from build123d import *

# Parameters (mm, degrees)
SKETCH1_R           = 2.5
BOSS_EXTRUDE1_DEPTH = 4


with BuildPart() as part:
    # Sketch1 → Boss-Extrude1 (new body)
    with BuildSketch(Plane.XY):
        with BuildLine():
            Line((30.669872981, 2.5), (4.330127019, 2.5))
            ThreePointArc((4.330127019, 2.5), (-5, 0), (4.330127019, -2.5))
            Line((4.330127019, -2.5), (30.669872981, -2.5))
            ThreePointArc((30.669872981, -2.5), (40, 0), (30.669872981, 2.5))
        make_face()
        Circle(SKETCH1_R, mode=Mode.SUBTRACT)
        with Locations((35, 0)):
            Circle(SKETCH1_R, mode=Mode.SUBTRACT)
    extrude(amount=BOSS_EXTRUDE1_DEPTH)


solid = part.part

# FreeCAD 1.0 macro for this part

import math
import FreeCAD as App
import Part
import Sketcher
from FreeCAD import Vector

doc = App.newDocument("Part")
body = doc.addObject("PartDesign::Body", "Body")

# Sketch on XY plane
sketch1 = body.newObject("Sketcher::SketchObject", "Sketch")
sketch1.AttachmentSupport = (doc.getObject("XY_Plane"), [""])
sketch1.MapMode = "FlatFace"
sketch1.addGeometry([
    Part.LineSegment(Vector(30.7, 2.5, 0), Vector(4.3, 2.5, 0)),  # 0
    Part.ArcOfCircle(Part.Circle(Vector(0, 0, 0), Vector(0, 0, 1), 5), math.radians(30), math.radians(330)),  # 1
    Part.LineSegment(Vector(4.3, -2.5, 0), Vector(30.7, -2.5, 0)),  # 2
    Part.ArcOfCircle(Part.Circle(Vector(35, 0, 0), Vector(0, 0, 1), 5), math.radians(-150), math.radians(150)),  # 3
    Part.Circle(Vector(0, 0, 0), Vector(0, 0, 1), 2.5),  # 4
    Part.Circle(Vector(35, 0, 0), Vector(0, 0, 1), 2.5),  # 5
], False)
sketch1.addConstraint([
    Sketcher.Constraint("Coincident", 0, 2, 1, 1),
    Sketcher.Constraint("Coincident", 1, 2, 2, 1),
    Sketcher.Constraint("Coincident", 2, 2, 3, 1),
    Sketcher.Constraint("Coincident", 3, 2, 0, 1),
    Sketcher.Constraint("Horizontal", 0),
    Sketcher.Constraint("Horizontal", 2),
    Sketcher.Constraint("Coincident", 1, 3, -1, 1),
    Sketcher.Constraint("Coincident", 4, 3, -1, 1),
    Sketcher.Constraint("Coincident", 5, 3, 3, 3),
    Sketcher.Constraint("Equal", 1, 3),
    Sketcher.Constraint("Equal", 4, 5),
    Sketcher.Constraint("Symmetric", 2, 2, 3, 2, -1),
    Sketcher.Constraint("Diameter", 4, 5.0),
    Sketcher.Constraint("Radius", 1, 5.0),
    Sketcher.Constraint("DistanceX", -1, 1, 3, 3, 35.0),
    Sketcher.Constraint("DistanceY", 1, 2, 0, 2, 5.0),
])
pad1 = body.newObject("PartDesign::Pad", "Pad")
pad1.Profile = sketch1
pad1.Length = 4

doc.recompute()
